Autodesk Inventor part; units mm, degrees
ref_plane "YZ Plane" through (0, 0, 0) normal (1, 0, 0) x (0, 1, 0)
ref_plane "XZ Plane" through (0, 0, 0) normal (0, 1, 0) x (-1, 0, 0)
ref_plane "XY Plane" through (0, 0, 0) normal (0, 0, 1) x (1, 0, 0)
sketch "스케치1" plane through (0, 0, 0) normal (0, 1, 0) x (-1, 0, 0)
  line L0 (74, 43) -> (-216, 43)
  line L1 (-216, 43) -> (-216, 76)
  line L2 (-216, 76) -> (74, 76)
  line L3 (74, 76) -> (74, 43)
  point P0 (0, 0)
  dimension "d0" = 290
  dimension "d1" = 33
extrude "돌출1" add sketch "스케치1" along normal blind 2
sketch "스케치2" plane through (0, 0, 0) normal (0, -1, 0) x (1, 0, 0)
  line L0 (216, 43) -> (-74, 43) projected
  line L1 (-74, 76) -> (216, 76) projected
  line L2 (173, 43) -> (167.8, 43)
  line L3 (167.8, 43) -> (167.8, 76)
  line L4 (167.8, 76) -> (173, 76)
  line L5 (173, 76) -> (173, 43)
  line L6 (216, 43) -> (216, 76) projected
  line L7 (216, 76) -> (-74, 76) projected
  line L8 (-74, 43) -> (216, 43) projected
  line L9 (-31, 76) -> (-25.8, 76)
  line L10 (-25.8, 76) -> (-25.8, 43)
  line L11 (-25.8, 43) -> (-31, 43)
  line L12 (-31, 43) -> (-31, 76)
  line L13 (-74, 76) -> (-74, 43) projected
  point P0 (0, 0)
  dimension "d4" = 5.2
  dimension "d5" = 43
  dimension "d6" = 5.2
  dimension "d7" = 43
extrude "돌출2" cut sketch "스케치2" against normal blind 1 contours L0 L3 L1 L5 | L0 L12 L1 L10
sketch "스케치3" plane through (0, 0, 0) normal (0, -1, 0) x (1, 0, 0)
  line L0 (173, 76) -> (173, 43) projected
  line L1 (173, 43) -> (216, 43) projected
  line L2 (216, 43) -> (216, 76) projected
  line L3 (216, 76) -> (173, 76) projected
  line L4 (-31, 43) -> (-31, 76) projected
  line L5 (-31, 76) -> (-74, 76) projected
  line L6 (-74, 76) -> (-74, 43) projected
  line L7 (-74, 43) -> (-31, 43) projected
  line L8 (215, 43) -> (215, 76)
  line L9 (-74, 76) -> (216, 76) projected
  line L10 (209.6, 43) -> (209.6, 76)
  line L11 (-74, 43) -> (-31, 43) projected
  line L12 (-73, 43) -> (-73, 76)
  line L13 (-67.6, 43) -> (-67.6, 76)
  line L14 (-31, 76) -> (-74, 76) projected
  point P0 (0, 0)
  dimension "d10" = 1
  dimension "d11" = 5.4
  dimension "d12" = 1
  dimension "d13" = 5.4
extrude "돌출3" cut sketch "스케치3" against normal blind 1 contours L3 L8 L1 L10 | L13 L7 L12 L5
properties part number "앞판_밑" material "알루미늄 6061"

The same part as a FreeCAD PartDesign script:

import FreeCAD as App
import Part
import Sketcher


def add_polygon(sketch, points):
    """Adds a closed chain of lines whose ends are joined by coincident constraints."""
    first, n = sketch.GeometryCount, len(points)
    for a, b in zip(points, points[1:] + points[:1]):
        sketch.addGeometry(Part.LineSegment(App.Vector(*a, 0), App.Vector(*b, 0)), False)
    for i in range(n):
        sketch.addConstraint(Sketcher.Constraint("Coincident", first + i, 2, first + (i + 1) % n, 1))

doc = App.newDocument("Part")
params = doc.addObject("Spreadsheet::Sheet", "Params")
for row, (alias, value) in enumerate([
    ("sketch1_width", "290 mm"),
    ("sketch1_height", "33 mm"),
    ("pad1_length", "2 mm"),
    ("sketch2_width", "5.2 mm"),
    ("sketch2_height", "33 mm"),
    ("pocket1_length", "1 mm"),
    ("sketch3_width", "5.4 mm"),
    ("sketch3_height", "33 mm"),
    ("pocket2_length", "1 mm"),
], start=1):
    params.set(f"A{row}", alias)
    params.set(f"B{row}", "=" + value)
    params.setAlias(f"B{row}", alias)

body = doc.addObject("PartDesign::Body", "Body")

# Sketch on XZ plane
sketch1 = body.newObject("Sketcher::SketchObject", "Sketch")
sketch1.AttachmentSupport = (doc.getObject("XZ_Plane"), [""])
sketch1.MapMode = "FlatFace"
add_polygon(sketch1, [(216, 43), (-74, 43), (-74, 76), (216, 76)])  # lines 0-3
sketch1.addConstraint([
    Sketcher.Constraint("Horizontal", 0),
    Sketcher.Constraint("Vertical", 1),
    Sketcher.Constraint("Horizontal", 2),
    Sketcher.Constraint("Vertical", 3),
    Sketcher.Constraint("DistanceX", 0, 2, 0, 1, 290.0),
    Sketcher.Constraint("DistanceY", 1, 1, 1, 2, 33.0),
    Sketcher.Constraint("DistanceX", 0, 2, -1, 1, 74.0),
    Sketcher.Constraint("DistanceY", -1, 1, 0, 2, 43.0),
])
sketch1.setExpression("Constraints[8]", "Params.sketch1_width")
sketch1.setExpression("Constraints[9]", "Params.sketch1_height")
pad1 = body.newObject("PartDesign::Pad", "Pad")
pad1.Profile = sketch1
pad1.setExpression("Length", "Params.pad1_length")
pad1.Reversed = True

# Sketch on XZ plane
sketch2 = body.newObject("Sketcher::SketchObject", "Sketch001")
sketch2.AttachmentSupport = (doc.getObject("XZ_Plane"), [""])
sketch2.MapMode = "FlatFace"
add_polygon(sketch2, [(168, 43), (173, 43), (173, 76), (168, 76)])  # lines 0-3
add_polygon(sketch2, [(-31, 43), (-26, 43), (-26, 76), (-31, 76)])  # lines 4-7
sketch2.addConstraint([
    Sketcher.Constraint("Horizontal", 0),
    Sketcher.Constraint("Vertical", 1),
    Sketcher.Constraint("Horizontal", 2),
    Sketcher.Constraint("Vertical", 3),
    Sketcher.Constraint("Horizontal", 4),
    Sketcher.Constraint("Vertical", 5),
    Sketcher.Constraint("Horizontal", 6),
    Sketcher.Constraint("Vertical", 7),
    Sketcher.Constraint("Horizontal", 3, 2, 4, 2),
    Sketcher.Constraint("Horizontal", 2, 2, 5, 2),
    Sketcher.Constraint("Equal", 2, 4),
    Sketcher.Constraint("DistanceX", 0, 1, 0, 2, 5.2),
    Sketcher.Constraint("DistanceY", -1, 1, 0, 2, 43.0),
    Sketcher.Constraint("DistanceY", 1, 1, 1, 2, 33.0),
    Sketcher.Constraint("DistanceX", -1, 1, 0, 2, 173.0),
    Sketcher.Constraint("DistanceX", 6, 2, -1, 1, 31.0),
])
sketch2.setExpression("Constraints[19]", "Params.sketch2_width")
sketch2.setExpression("Constraints[21]", "Params.sketch2_height")
pocket1 = body.newObject("PartDesign::Pocket", "Pocket")
pocket1.Profile = sketch2
pocket1.setExpression("Length", "Params.pocket1_length")

# Sketch on XZ plane
sketch3 = body.newObject("Sketcher::SketchObject", "Sketch002")
sketch3.AttachmentSupport = (doc.getObject("XZ_Plane"), [""])
sketch3.MapMode = "FlatFace"
add_polygon(sketch3, [(215, 76), (210, 76), (210, 43), (215, 43)])  # lines 0-3
add_polygon(sketch3, [(-68, 43), (-68, 76), (-73, 76), (-73, 43)])  # lines 4-7
sketch3.addConstraint([
    Sketcher.Constraint("Horizontal", 0),
    Sketcher.Constraint("Vertical", 1),
    Sketcher.Constraint("Horizontal", 2),
    Sketcher.Constraint("Vertical", 3),
    Sketcher.Constraint("Vertical", 4),
    Sketcher.Constraint("Horizontal", 5),
    Sketcher.Constraint("Vertical", 6),
    Sketcher.Constraint("Horizontal", 7),
    Sketcher.Constraint("Horizontal", 3, 2, 4, 2),
    Sketcher.Constraint("Horizontal", 2, 2, 6, 2),
    Sketcher.Constraint("Equal", 2, 5),
    Sketcher.Constraint("DistanceX", 0, 2, 0, 1, 5.4),
    Sketcher.Constraint("DistanceY", 1, 2, 1, 1, 33.0),
    Sketcher.Constraint("DistanceY", -1, 1, 0, 2, 76.0),
    Sketcher.Constraint("DistanceX", -1, 1, 2, 2, 215.0),
    Sketcher.Constraint("DistanceX", 5, 2, -1, 1, 73.0),
])
sketch3.setExpression("Constraints[19]", "Params.sketch3_width")
sketch3.setExpression("Constraints[20]", "Params.sketch3_height")
pocket2 = body.newObject("PartDesign::Pocket", "Pocket001")
pocket2.Profile = sketch3
pocket2.setExpression("Length", "Params.pocket2_length")

doc.recompute()
